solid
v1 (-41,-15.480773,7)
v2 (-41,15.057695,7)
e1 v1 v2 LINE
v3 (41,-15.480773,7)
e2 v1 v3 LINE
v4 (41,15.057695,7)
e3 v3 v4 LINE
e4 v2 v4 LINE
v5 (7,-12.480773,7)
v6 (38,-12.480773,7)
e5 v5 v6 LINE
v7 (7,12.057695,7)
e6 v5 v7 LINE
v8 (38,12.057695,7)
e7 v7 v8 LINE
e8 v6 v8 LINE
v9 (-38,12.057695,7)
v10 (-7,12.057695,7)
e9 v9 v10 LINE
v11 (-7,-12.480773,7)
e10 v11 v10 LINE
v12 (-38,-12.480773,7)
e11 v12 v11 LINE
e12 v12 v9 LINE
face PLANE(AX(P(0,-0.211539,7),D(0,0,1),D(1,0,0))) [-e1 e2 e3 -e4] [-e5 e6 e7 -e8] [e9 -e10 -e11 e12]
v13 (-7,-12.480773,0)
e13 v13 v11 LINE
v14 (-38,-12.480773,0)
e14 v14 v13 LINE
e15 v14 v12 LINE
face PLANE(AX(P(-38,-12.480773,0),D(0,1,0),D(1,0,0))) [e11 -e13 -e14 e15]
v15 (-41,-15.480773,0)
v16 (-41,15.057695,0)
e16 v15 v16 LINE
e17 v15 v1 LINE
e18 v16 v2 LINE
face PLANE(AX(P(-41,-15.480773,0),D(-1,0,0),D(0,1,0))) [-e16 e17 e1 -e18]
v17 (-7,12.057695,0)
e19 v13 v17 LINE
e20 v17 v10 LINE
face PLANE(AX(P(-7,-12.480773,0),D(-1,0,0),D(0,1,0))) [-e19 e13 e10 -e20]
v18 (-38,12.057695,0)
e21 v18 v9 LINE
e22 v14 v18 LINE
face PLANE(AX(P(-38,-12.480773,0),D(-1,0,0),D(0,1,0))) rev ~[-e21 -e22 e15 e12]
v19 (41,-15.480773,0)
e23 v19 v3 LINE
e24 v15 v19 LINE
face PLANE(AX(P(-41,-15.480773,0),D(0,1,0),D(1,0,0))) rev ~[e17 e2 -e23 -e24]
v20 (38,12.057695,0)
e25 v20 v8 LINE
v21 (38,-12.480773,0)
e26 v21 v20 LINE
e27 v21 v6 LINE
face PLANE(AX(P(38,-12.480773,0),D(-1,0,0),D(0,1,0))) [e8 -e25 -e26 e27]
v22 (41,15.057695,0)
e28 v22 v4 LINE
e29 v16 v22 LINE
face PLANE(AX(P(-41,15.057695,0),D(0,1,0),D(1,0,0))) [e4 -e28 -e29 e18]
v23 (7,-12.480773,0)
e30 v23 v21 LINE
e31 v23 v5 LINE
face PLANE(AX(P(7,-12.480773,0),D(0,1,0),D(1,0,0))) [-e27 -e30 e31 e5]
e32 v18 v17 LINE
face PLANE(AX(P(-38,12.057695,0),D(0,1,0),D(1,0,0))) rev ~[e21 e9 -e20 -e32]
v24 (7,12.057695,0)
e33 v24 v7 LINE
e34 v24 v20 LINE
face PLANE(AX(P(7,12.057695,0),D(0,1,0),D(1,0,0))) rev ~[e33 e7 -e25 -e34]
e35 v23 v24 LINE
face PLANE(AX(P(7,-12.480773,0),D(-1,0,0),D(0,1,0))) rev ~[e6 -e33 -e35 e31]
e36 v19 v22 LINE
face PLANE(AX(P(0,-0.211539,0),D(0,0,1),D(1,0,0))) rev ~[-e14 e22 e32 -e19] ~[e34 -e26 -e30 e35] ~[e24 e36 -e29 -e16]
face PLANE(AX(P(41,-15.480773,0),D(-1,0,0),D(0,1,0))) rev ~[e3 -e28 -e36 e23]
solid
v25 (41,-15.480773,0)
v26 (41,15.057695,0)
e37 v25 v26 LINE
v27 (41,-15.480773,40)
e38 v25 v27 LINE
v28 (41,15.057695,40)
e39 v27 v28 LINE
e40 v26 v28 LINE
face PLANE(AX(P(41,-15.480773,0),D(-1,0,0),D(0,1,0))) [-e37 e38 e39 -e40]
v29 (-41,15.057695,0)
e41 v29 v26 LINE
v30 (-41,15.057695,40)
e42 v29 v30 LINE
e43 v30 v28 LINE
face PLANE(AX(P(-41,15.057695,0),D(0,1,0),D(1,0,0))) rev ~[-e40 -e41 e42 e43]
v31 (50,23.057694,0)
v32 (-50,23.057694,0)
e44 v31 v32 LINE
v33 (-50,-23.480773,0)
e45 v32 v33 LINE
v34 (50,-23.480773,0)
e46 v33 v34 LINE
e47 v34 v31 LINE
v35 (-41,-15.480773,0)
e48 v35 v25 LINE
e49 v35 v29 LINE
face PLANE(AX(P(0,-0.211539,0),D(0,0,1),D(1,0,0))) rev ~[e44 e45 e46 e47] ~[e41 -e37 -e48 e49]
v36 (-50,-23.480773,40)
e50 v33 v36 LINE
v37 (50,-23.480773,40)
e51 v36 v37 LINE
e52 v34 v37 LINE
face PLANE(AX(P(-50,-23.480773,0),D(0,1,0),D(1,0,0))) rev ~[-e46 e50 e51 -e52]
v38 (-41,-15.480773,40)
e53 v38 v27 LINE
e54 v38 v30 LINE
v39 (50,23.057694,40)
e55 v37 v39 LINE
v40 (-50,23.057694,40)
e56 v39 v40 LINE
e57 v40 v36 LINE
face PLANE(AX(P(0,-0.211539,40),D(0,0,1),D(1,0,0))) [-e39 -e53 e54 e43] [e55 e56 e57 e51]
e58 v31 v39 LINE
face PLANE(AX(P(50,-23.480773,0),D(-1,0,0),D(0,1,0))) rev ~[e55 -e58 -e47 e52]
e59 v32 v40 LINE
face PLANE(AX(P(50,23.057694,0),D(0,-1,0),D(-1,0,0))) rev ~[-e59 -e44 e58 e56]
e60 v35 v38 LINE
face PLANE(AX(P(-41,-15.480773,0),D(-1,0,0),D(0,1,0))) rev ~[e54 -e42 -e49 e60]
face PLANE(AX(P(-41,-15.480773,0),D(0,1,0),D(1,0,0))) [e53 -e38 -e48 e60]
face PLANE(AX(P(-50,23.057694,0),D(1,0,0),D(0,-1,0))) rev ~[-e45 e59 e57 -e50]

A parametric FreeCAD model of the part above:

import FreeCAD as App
import Part
import Sketcher

V = App.Vector

doc = App.newDocument("Part")
body = doc.addObject("PartDesign::Body", "Body")

sketch1 = doc.addObject("Sketcher::SketchObject", "Sketch")
body.addObject(sketch1)
sketch1.AttachmentSupport = (doc.XY_Plane, [""])
sketch1.MapMode = "FlatFace"
sketch1.addGeometry([
    Part.LineSegment(V(-50, 23, 0), V(-50, -23, 0)),
    Part.LineSegment(V(-50, -23, 0), V(50, -23, 0)),
    Part.LineSegment(V(50, -23, 0), V(50, 23, 0)),
    Part.LineSegment(V(50, 23, 0), V(-50, 23, 0)),
    Part.LineSegment(V(41, -15, 0), V(-41, -15, 0)),
    Part.LineSegment(V(-41, -15, 0), V(-41, 15, 0)),
    Part.LineSegment(V(-41, 15, 0), V(41, 15, 0)),
    Part.LineSegment(V(41, 15, 0), V(41, -15, 0)),
], False)
sketch1.addConstraint([
    Sketcher.Constraint("Coincident", 0, 2, 1, 1),
    Sketcher.Constraint("Coincident", 1, 2, 2, 1),
    Sketcher.Constraint("Coincident", 2, 2, 3, 1),
    Sketcher.Constraint("Coincident", 3, 2, 0, 1),
    Sketcher.Constraint("Coincident", 4, 2, 5, 1),
    Sketcher.Constraint("Coincident", 5, 2, 6, 1),
    Sketcher.Constraint("Coincident", 6, 2, 7, 1),
    Sketcher.Constraint("Coincident", 7, 2, 4, 1),
    Sketcher.Constraint("Vertical", 0),
    Sketcher.Constraint("Horizontal", 1),
    Sketcher.Constraint("Vertical", 2),
    Sketcher.Constraint("Horizontal", 3),
    Sketcher.Constraint("Horizontal", 4),
    Sketcher.Constraint("Vertical", 5),
    Sketcher.Constraint("Horizontal", 6),
    Sketcher.Constraint("Vertical", 7),
    Sketcher.Constraint("DistanceX", 1, 1, 1, 2, 100.0),
    Sketcher.Constraint("DistanceX", 4, 2, 4, 1, 82.0),
    Sketcher.Constraint("DistanceX", 0, 2, -1, 1, 50.0),
    Sketcher.Constraint("DistanceX", 4, 2, -1, 1, 41.0),
    Sketcher.Constraint("DistanceY", 0, 2, 4, 2, 8.0),
    Sketcher.Constraint("DistanceY", 5, 2, 3, 2, 8.0),
    Sketcher.Constraint("DistanceY", 0, 2, 0, 1, 46.538467),
    Sketcher.Constraint("DistanceY", 0, 2, -1, 1, 23.480773),
])
pad1 = doc.addObject("PartDesign::Pad", "Pad")
body.addObject(pad1)
pad1.Profile = sketch1
pad1.Length = 40
body2 = doc.addObject("PartDesign::Body", "Body001")

sketch2 = doc.addObject("Sketcher::SketchObject", "Sketch001")
body2.addObject(sketch2)
sketch2.AttachmentSupport = (doc.getObject("XY_Plane001"), [""])
sketch2.MapMode = "FlatFace"
sketch2.addGeometry([
    Part.LineSegment(V(-41, 15, 0), V(-41, -15, 0)),
    Part.LineSegment(V(-41, -15, 0), V(41, -15, 0)),
    Part.LineSegment(V(41, -15, 0), V(41, 15, 0)),
    Part.LineSegment(V(41, 15, 0), V(-41, 15, 0)),
    Part.LineSegment(V(-7, -12, 0), V(-38, -12, 0)),
    Part.LineSegment(V(-38, -12, 0), V(-38, 12, 0)),
    Part.LineSegment(V(-38, 12, 0), V(-7, 12, 0)),
    Part.LineSegment(V(-7, 12, 0), V(-7, -12, 0)),
    Part.LineSegment(V(38, -12, 0), V(7, -12, 0)),
    Part.LineSegment(V(7, -12, 0), V(7, 12, 0)),
    Part.LineSegment(V(7, 12, 0), V(38, 12, 0)),
    Part.LineSegment(V(38, 12, 0), V(38, -12, 0)),
], False)
sketch2.addConstraint([
    Sketcher.Constraint("Coincident", 0, 2, 1, 1),
    Sketcher.Constraint("Coincident", 1, 2, 2, 1),
    Sketcher.Constraint("Coincident", 2, 2, 3, 1),
    Sketcher.Constraint("Coincident", 3, 2, 0, 1),
    Sketcher.Constraint("Coincident", 4, 2, 5, 1),
    Sketcher.Constraint("Coincident", 5, 2, 6, 1),
    Sketcher.Constraint("Coincident", 6, 2, 7, 1),
    Sketcher.Constraint("Coincident", 7, 2, 4, 1),
    Sketcher.Constraint("Coincident", 8, 2, 9, 1),
    Sketcher.Constraint("Coincident", 9, 2, 10, 1),
    Sketcher.Constraint("Coincident", 10, 2, 11, 1),
    Sketcher.Constraint("Coincident", 11, 2, 8, 1),
    Sketcher.Constraint("Vertical", 0),
    Sketcher.Constraint("Horizontal", 1),
    Sketcher.Constraint("Vertical", 2),
    Sketcher.Constraint("Horizontal", 3),
    Sketcher.Constraint("Horizontal", 4),
    Sketcher.Constraint("Vertical", 5),
    Sketcher.Constraint("Horizontal", 6),
    Sketcher.Constraint("Vertical", 7),
    Sketcher.Constraint("Horizontal", 8),
    Sketcher.Constraint("Vertical", 9),
    Sketcher.Constraint("Horizontal", 10),
    Sketcher.Constraint("Vertical", 11),
    Sketcher.Constraint("Symmetric", 7, 2, 8, 2, -2),
    Sketcher.Constraint("Symmetric", 5, 2, 10, 2, -2),
    Sketcher.Constraint("DistanceX", 1, 1, 1, 2, 82.0),
    Sketcher.Constraint("DistanceX", 4, 2, 4, 1, 31.0),
    Sketcher.Constraint("DistanceX", 0, 2, -1, 1, 41.0),
    Sketcher.Constraint("DistanceX", 4, 2, -1, 1, 38.0),
    Sketcher.Constraint("DistanceY", 0, 2, 4, 2, 3.0),
    Sketcher.Constraint("DistanceY", 5, 2, 3, 2, 3.0),
    Sketcher.Constraint("DistanceY", 0, 2, 0, 1, 30.538467),
    Sketcher.Constraint("DistanceY", 0, 2, -1, 1, 15.480773),
])
pad2 = doc.addObject("PartDesign::Pad", "Pad001")
body2.addObject(pad2)
pad2.Profile = sketch2
pad2.Length = 7

doc.recompute()
